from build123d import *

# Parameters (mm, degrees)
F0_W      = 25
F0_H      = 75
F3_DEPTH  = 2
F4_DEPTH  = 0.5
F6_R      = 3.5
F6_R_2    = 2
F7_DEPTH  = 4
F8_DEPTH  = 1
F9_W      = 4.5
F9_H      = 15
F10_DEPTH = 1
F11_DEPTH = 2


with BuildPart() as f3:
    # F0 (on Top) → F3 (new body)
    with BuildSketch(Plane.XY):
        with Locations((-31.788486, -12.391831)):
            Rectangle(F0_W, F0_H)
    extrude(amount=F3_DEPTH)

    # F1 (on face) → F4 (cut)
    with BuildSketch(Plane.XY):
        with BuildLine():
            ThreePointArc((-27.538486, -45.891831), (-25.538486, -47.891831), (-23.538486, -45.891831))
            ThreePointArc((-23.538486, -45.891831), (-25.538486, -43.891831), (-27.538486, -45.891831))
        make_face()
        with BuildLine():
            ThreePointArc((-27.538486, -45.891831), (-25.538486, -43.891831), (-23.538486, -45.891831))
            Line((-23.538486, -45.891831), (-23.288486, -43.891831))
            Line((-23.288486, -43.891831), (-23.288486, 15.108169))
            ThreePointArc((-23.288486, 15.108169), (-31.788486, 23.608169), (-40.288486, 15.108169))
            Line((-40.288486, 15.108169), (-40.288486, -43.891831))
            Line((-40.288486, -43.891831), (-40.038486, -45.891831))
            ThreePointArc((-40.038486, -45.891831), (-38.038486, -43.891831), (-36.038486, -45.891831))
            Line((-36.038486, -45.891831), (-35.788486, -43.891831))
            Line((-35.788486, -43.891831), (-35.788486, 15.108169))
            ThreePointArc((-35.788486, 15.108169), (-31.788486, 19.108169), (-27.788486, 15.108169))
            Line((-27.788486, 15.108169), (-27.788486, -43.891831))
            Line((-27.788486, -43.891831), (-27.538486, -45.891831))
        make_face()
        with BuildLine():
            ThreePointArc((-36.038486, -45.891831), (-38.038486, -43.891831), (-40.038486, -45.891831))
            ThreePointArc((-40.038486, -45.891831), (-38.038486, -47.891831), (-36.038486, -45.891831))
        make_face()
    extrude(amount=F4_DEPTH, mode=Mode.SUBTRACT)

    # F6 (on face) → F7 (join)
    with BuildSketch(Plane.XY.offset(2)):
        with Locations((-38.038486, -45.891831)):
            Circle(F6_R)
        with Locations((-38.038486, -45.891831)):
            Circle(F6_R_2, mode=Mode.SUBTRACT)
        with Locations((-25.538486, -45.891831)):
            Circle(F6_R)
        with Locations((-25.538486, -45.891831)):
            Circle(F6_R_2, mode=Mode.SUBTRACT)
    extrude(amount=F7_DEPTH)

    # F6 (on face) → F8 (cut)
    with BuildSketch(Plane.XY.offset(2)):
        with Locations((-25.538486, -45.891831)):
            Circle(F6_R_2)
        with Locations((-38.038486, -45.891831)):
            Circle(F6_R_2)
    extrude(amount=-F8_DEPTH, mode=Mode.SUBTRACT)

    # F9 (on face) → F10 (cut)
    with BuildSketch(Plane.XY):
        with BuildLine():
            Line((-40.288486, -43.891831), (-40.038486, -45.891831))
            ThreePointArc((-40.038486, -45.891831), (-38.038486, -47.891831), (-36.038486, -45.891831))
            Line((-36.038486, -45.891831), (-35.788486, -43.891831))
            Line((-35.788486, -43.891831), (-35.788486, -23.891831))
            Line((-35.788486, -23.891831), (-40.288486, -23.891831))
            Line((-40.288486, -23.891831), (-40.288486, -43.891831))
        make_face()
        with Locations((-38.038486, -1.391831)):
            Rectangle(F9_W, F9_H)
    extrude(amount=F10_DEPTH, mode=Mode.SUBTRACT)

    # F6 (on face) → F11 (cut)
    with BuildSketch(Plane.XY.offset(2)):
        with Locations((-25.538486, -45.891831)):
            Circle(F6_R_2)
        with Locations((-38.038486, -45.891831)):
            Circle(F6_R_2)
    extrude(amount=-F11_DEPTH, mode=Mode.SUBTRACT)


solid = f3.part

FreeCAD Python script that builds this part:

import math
import FreeCAD as App
import Part
import Sketcher
from FreeCAD import Vector


def add_polygon(sketch, points):
    """Adds a closed chain of lines whose ends are joined by coincident constraints."""
    first, n = sketch.GeometryCount, len(points)
    for a, b in zip(points, points[1:] + points[:1]):
        sketch.addGeometry(Part.LineSegment(App.Vector(*a, 0), App.Vector(*b, 0)), False)
    for i in range(n):
        sketch.addConstraint(Sketcher.Constraint("Coincident", first + i, 2, first + (i + 1) % n, 1))

doc = App.newDocument("Part")
body = doc.addObject("PartDesign::Body", "Body")

# Sketch on XY plane
sketch1 = body.newObject("Sketcher::SketchObject", "Sketch")
sketch1.AttachmentSupport = (doc.getObject("XY_Plane"), [""])
sketch1.MapMode = "FlatFace"
add_polygon(sketch1, [(-44, 25), (-44, -50), (-19, -50), (-19, 25)])  # lines 0-3
sketch1.addConstraint([
    Sketcher.Constraint("Vertical", 0),
    Sketcher.Constraint("Horizontal", 1),
    Sketcher.Constraint("Vertical", 2),
    Sketcher.Constraint("Horizontal", 3),
    Sketcher.Constraint("DistanceX", 1, 1, 1, 2, 25.0),
    Sketcher.Constraint("DistanceY", 0, 2, 0, 1, 75.0),
    Sketcher.Constraint("DistanceY", 0, 2, -1, 1, 49.891831),
    Sketcher.Constraint("DistanceX", 0, 2, -1, 1, 44.288486),
])
pad1 = body.newObject("PartDesign::Pad", "Pad")
pad1.Profile = sketch1
pad1.Length = 2

# Sketch on XY plane
sketch2 = body.newObject("Sketcher::SketchObject", "Sketch001")
sketch2.AttachmentSupport = (doc.getObject("XY_Plane"), [""])
sketch2.MapMode = "FlatFace"
sketch2.addGeometry([
    Part.ArcOfCircle(Part.Circle(Vector(-25.5, -45.9, 0), Vector(0, 0, 1), 2), math.radians(180), math.radians(360)),  # 0
    Part.LineSegment(Vector(-23.5, -45.9, 0), Vector(-23.3, -43.9, 0)),  # 1
    Part.LineSegment(Vector(-23.3, -43.9, 0), Vector(-23.3, 15.1, 0)),  # 2
    Part.ArcOfCircle(Part.Circle(Vector(-31.8, 15.1, 0), Vector(0, 0, 1), 8.5), math.radians(0), math.radians(180)),  # 3
    Part.LineSegment(Vector(-40.3, 15.1, 0), Vector(-40.3, -43.9, 0)),  # 4
    Part.LineSegment(Vector(-40.3, -43.9, 0), Vector(-40, -45.9, 0)),  # 5
    Part.ArcOfCircle(Part.Circle(Vector(-38, -45.9, 0), Vector(0, 0, 1), 2), math.radians(180), math.radians(360)),  # 6
    Part.LineSegment(Vector(-36, -45.9, 0), Vector(-35.8, -43.9, 0)),  # 7
    Part.LineSegment(Vector(-35.8, -43.9, 0), Vector(-35.8, 15.1, 0)),  # 8
    Part.ArcOfCircle(Part.Circle(Vector(-31.8, 15.1, 0), Vector(0, 0, 1), 4), math.radians(0), math.radians(180)),  # 9
    Part.LineSegment(Vector(-27.8, 15.1, 0), Vector(-27.8, -43.9, 0)),  # 10
    Part.LineSegment(Vector(-27.8, -43.9, 0), Vector(-27.5, -45.9, 0)),  # 11
], False)
sketch2.addConstraint([
    Sketcher.Constraint("Coincident", 0, 2, 1, 1),
    Sketcher.Constraint("Coincident", 1, 2, 2, 1),
    Sketcher.Constraint("Tangent", 2, 2, 3, 1),
    Sketcher.Constraint("Tangent", 3, 2, 4, 1),
    Sketcher.Constraint("Coincident", 4, 2, 5, 1),
    Sketcher.Constraint("Coincident", 5, 2, 6, 1),
    Sketcher.Constraint("Coincident", 6, 2, 7, 1),
    Sketcher.Constraint("Coincident", 7, 2, 8, 1),
    Sketcher.Constraint("Tangent", 8, 2, 9, 2),
    Sketcher.Constraint("Tangent", 9, 1, 10, 1),
    Sketcher.Constraint("Coincident", 10, 2, 11, 1),
    Sketcher.Constraint("Coincident", 11, 2, 0, 1),
    Sketcher.Constraint("Vertical", 2),
    Sketcher.Constraint("Vertical", 4),
    Sketcher.Constraint("Vertical", 8),
    Sketcher.Constraint("Vertical", 10),
    Sketcher.Constraint("Coincident", 9, 3, 3, 3),
    Sketcher.Constraint("Equal", 0, 6),
    Sketcher.Constraint("Parallel", 1, 7),
    Sketcher.Constraint("Parallel", 5, 11),
    Sketcher.Constraint("Horizontal", 0, 3, 6, 3),
    Sketcher.Constraint("Horizontal", 6, 3, 0, 2),
    Sketcher.Constraint("Horizontal", 1, 2, 4, 2),
    Sketcher.Constraint("Horizontal", 0, 2, 5, 2),
    Sketcher.Constraint("Horizontal", 5, 2, 6, 2),
    Sketcher.Constraint("Horizontal", 4, 2, 7, 2),
    Sketcher.Constraint("Horizontal", 7, 2, 10, 2),
    Sketcher.Constraint("Equal", 1, 5),
    Sketcher.Constraint("Radius", 0, 2.0),
    Sketcher.Constraint("Radius", 9, 4.0),
    Sketcher.Constraint("Radius", 3, 8.5),
    Sketcher.Constraint("DistanceY", 2, 1, 2, 2, 59.0),
    Sketcher.Constraint("DistanceY", 0, 3, 3, 3, 61.0),
    Sketcher.Constraint("DistanceY", 0, 3, -1, 1, 45.891831),
    Sketcher.Constraint("DistanceX", 0, 3, -1, 1, 25.538486),
])
pocket1 = body.newObject("PartDesign::Pocket", "Pocket")
pocket1.Profile = sketch2
pocket1.Length = 0.5
pocket1.Reversed = True

# Sketch on XY plane
sketch3 = body.newObject("Sketcher::SketchObject", "Sketch002")
sketch3.AttachmentSupport = (doc.getObject("XY_Plane"), [""])
sketch3.MapMode = "FlatFace"
sketch3.AttachmentOffset = App.Placement(Vector(0, 0, 2), App.Rotation())
sketch3.addGeometry([
    Part.Circle(Vector(-38, -45.9, 0), Vector(0, 0, 1), 3.5),
    Part.Circle(Vector(-38, -45.9, 0), Vector(0, 0, 1), 2),
    Part.Circle(Vector(-25.5, -45.9, 0), Vector(0, 0, 1), 3.5),
    Part.Circle(Vector(-25.5, -45.9, 0), Vector(0, 0, 1), 2),
], False)
sketch3.addConstraint([
    Sketcher.Constraint("Coincident", 1, 3, 0, 3),
    Sketcher.Constraint("Coincident", 3, 3, 2, 3),
    Sketcher.Constraint("Equal", 0, 2),
    Sketcher.Constraint("Equal", 1, 3),
    Sketcher.Constraint("Horizontal", 1, 3, 2, 3),
    Sketcher.Constraint("Diameter", 0, 7.0),
    Sketcher.Constraint("Diameter", 1, 4.0),
    Sketcher.Constraint("DistanceX", 0, 3, 2, 3, 12.5),
    Sketcher.Constraint("DistanceY", 0, 3, -1, 1, 45.891831),
    Sketcher.Constraint("DistanceX", 0, 3, -1, 1, 38.038486),
])
pad2 = body.newObject("PartDesign::Pad", "Pad001")
pad2.Profile = sketch3
pad2.Length = 4

# Sketch on XY plane
sketch4 = body.newObject("Sketcher::SketchObject", "Sketch003")
sketch4.AttachmentSupport = (doc.getObject("XY_Plane"), [""])
sketch4.MapMode = "FlatFace"
sketch4.AttachmentOffset = App.Placement(Vector(0, 0, 2), App.Rotation())
sketch4.addGeometry([
    Part.Circle(Vector(-25.5, -45.9, 0), Vector(0, 0, 1), 2),
    Part.Circle(Vector(-38, -45.9, 0), Vector(0, 0, 1), 2),
], False)
sketch4.addConstraint([
    Sketcher.Constraint("Equal", 0, 1),
    Sketcher.Constraint("Horizontal", 0, 3, 1, 3),
    Sketcher.Constraint("Diameter", 0, 4.0),
    Sketcher.Constraint("DistanceX", 1, 3, 0, 3, 12.5),
    Sketcher.Constraint("DistanceY", 0, 3, -1, 1, 45.891831),
    Sketcher.Constraint("DistanceX", 0, 3, -1, 1, 25.538486),
])
pocket2 = body.newObject("PartDesign::Pocket", "Pocket001")
pocket2.Profile = sketch4
pocket2.Length = 1

# Sketch on XY plane
sketch5 = body.newObject("Sketcher::SketchObject", "Sketch004")
sketch5.AttachmentSupport = (doc.getObject("XY_Plane"), [""])
sketch5.MapMode = "FlatFace"
sketch5.addGeometry(Part.LineSegment(Vector(-40.3, -43.9, 0), Vector(-40, -45.9, 0)), False)  # 0
sketch5.addGeometry(Part.ArcOfCircle(Part.Circle(Vector(-38, -45.9, 0), Vector(0, 0, 1), 2), math.radians(180), math.radians(360)), False)  # 1
sketch5.addGeometry(Part.LineSegment(Vector(-36, -45.9, 0), Vector(-35.8, -43.9, 0)), False)  # 2
sketch5.addGeometry(Part.LineSegment(Vector(-35.8, -43.9, 0), Vector(-35.8, -23.9, 0)), False)  # 3
sketch5.addGeometry(Part.LineSegment(Vector(-35.8, -23.9, 0), Vector(-40.3, -23.9, 0)), False)  # 4
sketch5.addGeometry(Part.LineSegment(Vector(-40.3, -23.9, 0), Vector(-40.3, -43.9, 0)), False)  # 5
add_polygon(sketch5, [(-40.3, 6.1), (-40.3, -8.9), (-35.8, -8.9), (-35.8, 6.1)])  # lines 6-9
sketch5.addConstraint([
    Sketcher.Constraint("Coincident", 0, 2, 1, 1),
    Sketcher.Constraint("Coincident", 1, 2, 2, 1),
    Sketcher.Constraint("Coincident", 2, 2, 3, 1),
    Sketcher.Constraint("Coincident", 3, 2, 4, 1),
    Sketcher.Constraint("Coincident", 4, 2, 5, 1),
    Sketcher.Constraint("Coincident", 5, 2, 0, 1),
    Sketcher.Constraint("Vertical", 3),
    Sketcher.Constraint("Horizontal", 4),
    Sketcher.Constraint("Vertical", 5),
    Sketcher.Constraint("Vertical", 6),
    Sketcher.Constraint("Horizontal", 7),
    Sketcher.Constraint("Vertical", 8),
    Sketcher.Constraint("Horizontal", 9),
    Sketcher.Constraint("Horizontal", 1, 3, 0, 2),
    Sketcher.Constraint("Horizontal", 0, 2, 1, 2),
    Sketcher.Constraint("Horizontal", 2, 2, 5, 2),
    Sketcher.Constraint("Vertical", 5, 2, 6, 2),
    Sketcher.Constraint("Vertical", 3, 2, 7, 2),
    Sketcher.Constraint("Equal", 0, 2),
    Sketcher.Constraint("Radius", 1, 2.0),
    Sketcher.Constraint("DistanceY", 3, 1, 3, 2, 20.0),
    Sketcher.Constraint("DistanceY", 6, 2, 6, 1, 15.0),
    Sketcher.Constraint("DistanceX", 4, 2, 4, 1, 4.5),
    Sketcher.Constraint("DistanceY", 1, 2, 2, 2, 2.0),
    Sketcher.Constraint("DistanceY", 4, 2, 6, 2, 15.0),
    Sketcher.Constraint("DistanceY", 1, 3, -1, 1, 45.891831),
    Sketcher.Constraint("DistanceX", 1, 3, -1, 1, 38.038486),
])
pocket3 = body.newObject("PartDesign::Pocket", "Pocket002")
pocket3.Profile = sketch5
pocket3.Length = 1
pocket3.Reversed = True

# Sketch on XY plane
sketch6 = body.newObject("Sketcher::SketchObject", "Sketch005")
sketch6.AttachmentSupport = (doc.getObject("XY_Plane"), [""])
sketch6.MapMode = "FlatFace"
sketch6.AttachmentOffset = App.Placement(Vector(0, 0, 2), App.Rotation())
sketch6.addGeometry([
    Part.Circle(Vector(-25.5, -45.9, 0), Vector(0, 0, 1), 2),
    Part.Circle(Vector(-38, -45.9, 0), Vector(0, 0, 1), 2),
], False)
sketch6.addConstraint([
    Sketcher.Constraint("Equal", 0, 1),
    Sketcher.Constraint("Horizontal", 0, 3, 1, 3),
    Sketcher.Constraint("Diameter", 0, 4.0),
    Sketcher.Constraint("DistanceX", 1, 3, 0, 3, 12.5),
    Sketcher.Constraint("DistanceY", 0, 3, -1, 1, 45.891831),
    Sketcher.Constraint("DistanceX", 0, 3, -1, 1, 25.538486),
])
pocket4 = body.newObject("PartDesign::Pocket", "Pocket003")
pocket4.Profile = sketch6
pocket4.Length = 2

doc.recompute()
